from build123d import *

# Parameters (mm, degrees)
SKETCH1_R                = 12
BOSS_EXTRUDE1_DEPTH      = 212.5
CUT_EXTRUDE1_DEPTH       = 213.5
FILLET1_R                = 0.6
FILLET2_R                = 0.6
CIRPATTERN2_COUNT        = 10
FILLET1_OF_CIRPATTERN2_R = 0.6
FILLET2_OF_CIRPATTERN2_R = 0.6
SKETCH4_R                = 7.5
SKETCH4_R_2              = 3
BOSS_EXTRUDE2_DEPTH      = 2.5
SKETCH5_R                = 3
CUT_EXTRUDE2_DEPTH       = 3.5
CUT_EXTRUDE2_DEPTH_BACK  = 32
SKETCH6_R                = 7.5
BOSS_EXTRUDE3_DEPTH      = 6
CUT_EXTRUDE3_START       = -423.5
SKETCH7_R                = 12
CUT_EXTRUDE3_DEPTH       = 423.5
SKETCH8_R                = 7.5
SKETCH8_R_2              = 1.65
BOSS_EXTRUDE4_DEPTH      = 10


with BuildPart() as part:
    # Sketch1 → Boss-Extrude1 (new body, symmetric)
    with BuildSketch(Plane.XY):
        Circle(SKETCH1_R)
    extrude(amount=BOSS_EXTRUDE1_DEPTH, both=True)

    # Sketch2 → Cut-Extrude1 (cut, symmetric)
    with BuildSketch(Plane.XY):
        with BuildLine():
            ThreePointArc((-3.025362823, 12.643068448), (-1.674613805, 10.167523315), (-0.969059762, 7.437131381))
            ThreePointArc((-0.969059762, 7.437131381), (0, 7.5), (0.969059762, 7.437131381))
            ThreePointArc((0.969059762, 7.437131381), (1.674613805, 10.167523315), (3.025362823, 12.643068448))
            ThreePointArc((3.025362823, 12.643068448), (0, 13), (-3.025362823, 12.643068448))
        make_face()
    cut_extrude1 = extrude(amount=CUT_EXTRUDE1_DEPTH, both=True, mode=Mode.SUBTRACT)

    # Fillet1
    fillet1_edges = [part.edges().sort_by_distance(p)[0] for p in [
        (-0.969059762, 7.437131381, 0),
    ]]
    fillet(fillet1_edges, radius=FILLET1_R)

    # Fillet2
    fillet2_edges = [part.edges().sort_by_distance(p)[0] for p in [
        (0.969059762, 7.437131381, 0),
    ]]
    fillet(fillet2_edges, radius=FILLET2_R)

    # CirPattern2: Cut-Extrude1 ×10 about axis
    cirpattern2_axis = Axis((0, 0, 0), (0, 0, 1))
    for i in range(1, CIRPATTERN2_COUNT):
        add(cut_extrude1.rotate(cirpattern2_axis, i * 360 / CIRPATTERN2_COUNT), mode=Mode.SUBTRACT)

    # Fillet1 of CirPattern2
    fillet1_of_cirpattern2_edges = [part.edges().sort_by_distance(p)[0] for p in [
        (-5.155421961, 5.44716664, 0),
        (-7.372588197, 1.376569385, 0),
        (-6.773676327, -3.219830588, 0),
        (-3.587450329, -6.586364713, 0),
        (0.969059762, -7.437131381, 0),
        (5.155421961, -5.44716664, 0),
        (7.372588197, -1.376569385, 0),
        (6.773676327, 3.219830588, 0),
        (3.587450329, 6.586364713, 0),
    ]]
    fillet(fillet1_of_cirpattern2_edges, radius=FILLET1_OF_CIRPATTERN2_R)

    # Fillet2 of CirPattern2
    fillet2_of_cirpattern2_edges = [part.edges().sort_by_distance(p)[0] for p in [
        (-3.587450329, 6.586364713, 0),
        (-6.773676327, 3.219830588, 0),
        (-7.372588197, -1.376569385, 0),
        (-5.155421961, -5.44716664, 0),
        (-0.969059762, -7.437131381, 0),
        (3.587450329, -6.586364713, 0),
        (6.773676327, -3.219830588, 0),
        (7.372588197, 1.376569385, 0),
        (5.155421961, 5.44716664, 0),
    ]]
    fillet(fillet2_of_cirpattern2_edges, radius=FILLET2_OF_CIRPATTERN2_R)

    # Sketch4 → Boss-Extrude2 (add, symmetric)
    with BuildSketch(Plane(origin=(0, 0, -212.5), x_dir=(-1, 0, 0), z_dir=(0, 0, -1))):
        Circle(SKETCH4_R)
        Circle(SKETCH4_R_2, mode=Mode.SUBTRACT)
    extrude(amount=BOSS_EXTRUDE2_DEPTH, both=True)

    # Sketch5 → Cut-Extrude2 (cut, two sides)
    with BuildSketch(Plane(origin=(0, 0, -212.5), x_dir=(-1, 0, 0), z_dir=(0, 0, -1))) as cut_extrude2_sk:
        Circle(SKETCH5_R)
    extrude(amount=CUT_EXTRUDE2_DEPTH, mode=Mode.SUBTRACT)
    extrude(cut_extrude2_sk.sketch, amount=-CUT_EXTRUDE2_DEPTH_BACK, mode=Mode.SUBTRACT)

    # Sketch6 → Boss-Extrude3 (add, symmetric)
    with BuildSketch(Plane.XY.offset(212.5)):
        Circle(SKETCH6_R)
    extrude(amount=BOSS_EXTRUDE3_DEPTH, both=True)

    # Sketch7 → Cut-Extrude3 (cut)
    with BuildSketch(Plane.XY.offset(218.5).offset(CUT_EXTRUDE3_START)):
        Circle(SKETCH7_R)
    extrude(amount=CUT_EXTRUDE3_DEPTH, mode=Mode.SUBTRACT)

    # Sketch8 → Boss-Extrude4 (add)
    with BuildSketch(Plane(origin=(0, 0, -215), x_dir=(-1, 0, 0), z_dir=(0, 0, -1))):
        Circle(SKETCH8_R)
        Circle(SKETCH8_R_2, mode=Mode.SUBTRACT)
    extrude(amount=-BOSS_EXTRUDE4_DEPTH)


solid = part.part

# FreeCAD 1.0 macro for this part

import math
import FreeCAD as App
import Part
import Sketcher
from FreeCAD import Vector
Q = App.Units.Quantity


def edges_at(feature, points):
    """Names of the edges that pass closest to the given points."""
    edges = feature.Shape.Edges
    near = lambda p: min(range(len(edges)), key=lambda i: edges[i].distToShape(Part.Vertex(*p))[0])
    return sorted({f"Edge{near(p) + 1}" for p in points})

doc = App.newDocument("Part")
body = doc.addObject("PartDesign::Body", "Body")

# Sketch on XY plane
sketch1 = body.newObject("Sketcher::SketchObject", "Sketch")
sketch1.AttachmentSupport = (doc.getObject("XY_Plane"), [""])
sketch1.MapMode = "FlatFace"
sketch1.addGeometry(Part.Circle(Vector(0, 0, 0), Vector(0, 0, 1), 12), False)
sketch1.addConstraint([
    Sketcher.Constraint("Coincident", 0, 3, -1, 1),
    Sketcher.Constraint("Diameter", 0, Q("24 mm")),
])
pad1 = body.newObject("PartDesign::Pad", "Pad")
pad1.Profile = sketch1
pad1.Length = 425
pad1.Midplane = True

# Sketch on XY plane
sketch2 = body.newObject("Sketcher::SketchObject", "Sketch001")
sketch2.AttachmentSupport = (doc.getObject("XY_Plane"), [""])
sketch2.MapMode = "FlatFace"
sketch2.addGeometry([
    Part.ArcOfCircle(Part.Circle(Vector(-12.337304, 5.955847, 0), Vector(0, 0, 1), 11.464344), math.radians(7.423826), math.radians(35.683412)),
    Part.ArcOfCircle(Part.Circle(Vector(0, 0, 0), Vector(0, 0, 1), 7.5), math.radians(82.576174), math.radians(97.423826)),
    Part.ArcOfCircle(Part.Circle(Vector(12.337304, 5.955847, 0), Vector(0, 0, 1), 11.464344), math.radians(144.316588), math.radians(172.576174)),
    Part.ArcOfCircle(Part.Circle(Vector(0, 0, 0), Vector(0, 0, 1), 13), math.radians(76.542725), math.radians(103.457275)),
], False)
sketch2.addConstraint([
    Sketcher.Constraint("Coincident", 0, 1, 1, 2),
    Sketcher.Constraint("Coincident", 1, 1, 2, 2),
    Sketcher.Constraint("Coincident", 2, 1, 3, 1),
    Sketcher.Constraint("Coincident", 3, 2, 0, 2),
    Sketcher.Constraint("Coincident", 1, 3, -1, 1),
    Sketcher.Constraint("Coincident", 3, 3, -1, 1),
    Sketcher.Constraint("Equal", 0, 2),
    Sketcher.Constraint("Symmetric", 0, 3, 2, 3, -2),
    Sketcher.Constraint("Radius", 3, Q("13 mm")),
    Sketcher.Constraint("Radius", 1, Q("7.5 mm")),
    Sketcher.Constraint("Radius", 0, Q("11.464344 mm")),
    Sketcher.Constraint("DistanceX", 0, 1, -1, 1, Q("0.96906 mm")),
    Sketcher.Constraint("DistanceY", -1, 1, 2, 1, Q("12.643068 mm")),
])
pocket1 = body.newObject("PartDesign::Pocket", "Pocket")
pocket1.Profile = sketch2
pocket1.Length = 427
pocket1.Midplane = True
doc.recompute()

fillet = body.newObject("PartDesign::Fillet", "Fillet")
fillet.Base = (pocket1, edges_at(pocket1, [(-0.969, 7.437, 0)]))
fillet.Radius = 0.6
doc.recompute()

fillet2 = body.newObject("PartDesign::Fillet", "Fillet001")
fillet2.Base = (fillet, edges_at(fillet, [(0.969, 7.437, 0)]))
fillet2.Radius = 0.6
doc.recompute()

polarpattern = body.newObject("PartDesign::PolarPattern", "PolarPattern")
polarpattern.Originals = [pocket1]
polarpattern.Axis = (doc.getObject("Z_Axis"), [""])
polarpattern.Angle = 360
polarpattern.Occurrences = 10
body.Tip = polarpattern
doc.recompute()

fillet3 = body.newObject("PartDesign::Fillet", "Fillet002")
fillet3.Base = (polarpattern, edges_at(polarpattern, [
    (-5.155, 5.447, 0),
    (-7.373, 1.377, 0),
    (-6.774, -3.22, 0),
    (-3.587, -6.586, 0),
    (0.969, -7.437, 0),
    (5.155, -5.447, 0),
    (7.373, -1.377, 0),
    (6.774, 3.22, 0),
    (3.587, 6.586, 0),
]))
fillet3.Radius = 0.6
doc.recompute()

fillet4 = body.newObject("PartDesign::Fillet", "Fillet003")
fillet4.Base = (fillet3, edges_at(fillet3, [
    (-3.587, 6.586, 0),
    (-6.774, 3.22, 0),
    (-7.373, -1.377, 0),
    (-5.155, -5.447, 0),
    (-0.969, -7.437, 0),
    (3.587, -6.586, 0),
    (6.774, -3.22, 0),
    (7.373, 1.377, 0),
    (5.155, 5.447, 0),
]))
fillet4.Radius = 0.6

# Sketch on XY plane
sketch3 = body.newObject("Sketcher::SketchObject", "Sketch002")
sketch3.AttachmentSupport = (doc.getObject("XY_Plane"), [""])
sketch3.MapMode = "FlatFace"
sketch3.AttachmentOffset = App.Placement(Vector(0, 0, -212.5), App.Rotation())
sketch3.addGeometry([
    Part.Circle(Vector(0, 0, 0), Vector(0, 0, 1), 7.5),
    Part.Circle(Vector(0, 0, 0), Vector(0, 0, 1), 3),
], False)
sketch3.addConstraint([
    Sketcher.Constraint("Coincident", 0, 3, -1, 1),
    Sketcher.Constraint("Coincident", 1, 3, -1, 1),
    Sketcher.Constraint("Diameter", 0, Q("15 mm")),
    Sketcher.Constraint("Diameter", 1, Q("6 mm")),
])
pad2 = body.newObject("PartDesign::Pad", "Pad001")
pad2.Profile = sketch3
pad2.Length = 5
pad2.Midplane = True

# Sketch on XY plane
sketch4 = body.newObject("Sketcher::SketchObject", "Sketch003")
sketch4.AttachmentSupport = (doc.getObject("XY_Plane"), [""])
sketch4.MapMode = "FlatFace"
sketch4.AttachmentOffset = App.Placement(Vector(0, 0, -212.5), App.Rotation())
sketch4.addGeometry(Part.Circle(Vector(0, 0, 0), Vector(0, 0, 1), 3), False)
sketch4.addConstraint([
    Sketcher.Constraint("Coincident", 0, 3, -1, 1),
    Sketcher.Constraint("Diameter", 0, Q("6 mm")),
])
pocket2 = body.newObject("PartDesign::Pocket", "Pocket001")
pocket2.Profile = sketch4
pocket2.Type = "TwoLengths"
pocket2.Length = 3.5
pocket2.Length2 = 32

# Sketch on XY plane
sketch5 = body.newObject("Sketcher::SketchObject", "Sketch004")
sketch5.AttachmentSupport = (doc.getObject("XY_Plane"), [""])
sketch5.MapMode = "FlatFace"
sketch5.AttachmentOffset = App.Placement(Vector(0, 0, 212.5), App.Rotation())
sketch5.addGeometry(Part.Circle(Vector(0, 0, 0), Vector(0, 0, 1), 7.5), False)
sketch5.addConstraint([
    Sketcher.Constraint("Coincident", 0, 3, -1, 1),
    Sketcher.Constraint("Diameter", 0, Q("15 mm")),
])
pad3 = body.newObject("PartDesign::Pad", "Pad002")
pad3.Profile = sketch5
pad3.Length = 12
pad3.Midplane = True

# Sketch on XY plane
sketch6 = body.newObject("Sketcher::SketchObject", "Sketch005")
sketch6.AttachmentSupport = (doc.getObject("XY_Plane"), [""])
sketch6.MapMode = "FlatFace"
sketch6.AttachmentOffset = App.Placement(Vector(0, 0, -205), App.Rotation())
sketch6.addGeometry(Part.Circle(Vector(0, 0, 0), Vector(0, 0, 1), 12), False)
sketch6.addConstraint([
    Sketcher.Constraint("Coincident", 0, 3, -1, 1),
    Sketcher.Constraint("Diameter", 0, Q("24 mm")),
])
pocket3 = body.newObject("PartDesign::Pocket", "Pocket002")
pocket3.Profile = sketch6
pocket3.Length = 423.5
pocket3.Reversed = True

# Sketch on XY plane
sketch7 = body.newObject("Sketcher::SketchObject", "Sketch006")
sketch7.AttachmentSupport = (doc.getObject("XY_Plane"), [""])
sketch7.MapMode = "FlatFace"
sketch7.AttachmentOffset = App.Placement(Vector(0, 0, -215), App.Rotation())
sketch7.addGeometry([
    Part.Circle(Vector(0, 0, 0), Vector(0, 0, 1), 7.5),
    Part.Circle(Vector(0, 0, 0), Vector(0, 0, 1), 1.65),
], False)
sketch7.addConstraint([
    Sketcher.Constraint("Coincident", 0, 3, -1, 1),
    Sketcher.Constraint("Coincident", 1, 3, -1, 1),
    Sketcher.Constraint("Diameter", 0, Q("15 mm")),
    Sketcher.Constraint("Diameter", 1, Q("3.3 mm")),
])
pad4 = body.newObject("PartDesign::Pad", "Pad003")
pad4.Profile = sketch7
pad4.Length = 10

doc.recompute()
